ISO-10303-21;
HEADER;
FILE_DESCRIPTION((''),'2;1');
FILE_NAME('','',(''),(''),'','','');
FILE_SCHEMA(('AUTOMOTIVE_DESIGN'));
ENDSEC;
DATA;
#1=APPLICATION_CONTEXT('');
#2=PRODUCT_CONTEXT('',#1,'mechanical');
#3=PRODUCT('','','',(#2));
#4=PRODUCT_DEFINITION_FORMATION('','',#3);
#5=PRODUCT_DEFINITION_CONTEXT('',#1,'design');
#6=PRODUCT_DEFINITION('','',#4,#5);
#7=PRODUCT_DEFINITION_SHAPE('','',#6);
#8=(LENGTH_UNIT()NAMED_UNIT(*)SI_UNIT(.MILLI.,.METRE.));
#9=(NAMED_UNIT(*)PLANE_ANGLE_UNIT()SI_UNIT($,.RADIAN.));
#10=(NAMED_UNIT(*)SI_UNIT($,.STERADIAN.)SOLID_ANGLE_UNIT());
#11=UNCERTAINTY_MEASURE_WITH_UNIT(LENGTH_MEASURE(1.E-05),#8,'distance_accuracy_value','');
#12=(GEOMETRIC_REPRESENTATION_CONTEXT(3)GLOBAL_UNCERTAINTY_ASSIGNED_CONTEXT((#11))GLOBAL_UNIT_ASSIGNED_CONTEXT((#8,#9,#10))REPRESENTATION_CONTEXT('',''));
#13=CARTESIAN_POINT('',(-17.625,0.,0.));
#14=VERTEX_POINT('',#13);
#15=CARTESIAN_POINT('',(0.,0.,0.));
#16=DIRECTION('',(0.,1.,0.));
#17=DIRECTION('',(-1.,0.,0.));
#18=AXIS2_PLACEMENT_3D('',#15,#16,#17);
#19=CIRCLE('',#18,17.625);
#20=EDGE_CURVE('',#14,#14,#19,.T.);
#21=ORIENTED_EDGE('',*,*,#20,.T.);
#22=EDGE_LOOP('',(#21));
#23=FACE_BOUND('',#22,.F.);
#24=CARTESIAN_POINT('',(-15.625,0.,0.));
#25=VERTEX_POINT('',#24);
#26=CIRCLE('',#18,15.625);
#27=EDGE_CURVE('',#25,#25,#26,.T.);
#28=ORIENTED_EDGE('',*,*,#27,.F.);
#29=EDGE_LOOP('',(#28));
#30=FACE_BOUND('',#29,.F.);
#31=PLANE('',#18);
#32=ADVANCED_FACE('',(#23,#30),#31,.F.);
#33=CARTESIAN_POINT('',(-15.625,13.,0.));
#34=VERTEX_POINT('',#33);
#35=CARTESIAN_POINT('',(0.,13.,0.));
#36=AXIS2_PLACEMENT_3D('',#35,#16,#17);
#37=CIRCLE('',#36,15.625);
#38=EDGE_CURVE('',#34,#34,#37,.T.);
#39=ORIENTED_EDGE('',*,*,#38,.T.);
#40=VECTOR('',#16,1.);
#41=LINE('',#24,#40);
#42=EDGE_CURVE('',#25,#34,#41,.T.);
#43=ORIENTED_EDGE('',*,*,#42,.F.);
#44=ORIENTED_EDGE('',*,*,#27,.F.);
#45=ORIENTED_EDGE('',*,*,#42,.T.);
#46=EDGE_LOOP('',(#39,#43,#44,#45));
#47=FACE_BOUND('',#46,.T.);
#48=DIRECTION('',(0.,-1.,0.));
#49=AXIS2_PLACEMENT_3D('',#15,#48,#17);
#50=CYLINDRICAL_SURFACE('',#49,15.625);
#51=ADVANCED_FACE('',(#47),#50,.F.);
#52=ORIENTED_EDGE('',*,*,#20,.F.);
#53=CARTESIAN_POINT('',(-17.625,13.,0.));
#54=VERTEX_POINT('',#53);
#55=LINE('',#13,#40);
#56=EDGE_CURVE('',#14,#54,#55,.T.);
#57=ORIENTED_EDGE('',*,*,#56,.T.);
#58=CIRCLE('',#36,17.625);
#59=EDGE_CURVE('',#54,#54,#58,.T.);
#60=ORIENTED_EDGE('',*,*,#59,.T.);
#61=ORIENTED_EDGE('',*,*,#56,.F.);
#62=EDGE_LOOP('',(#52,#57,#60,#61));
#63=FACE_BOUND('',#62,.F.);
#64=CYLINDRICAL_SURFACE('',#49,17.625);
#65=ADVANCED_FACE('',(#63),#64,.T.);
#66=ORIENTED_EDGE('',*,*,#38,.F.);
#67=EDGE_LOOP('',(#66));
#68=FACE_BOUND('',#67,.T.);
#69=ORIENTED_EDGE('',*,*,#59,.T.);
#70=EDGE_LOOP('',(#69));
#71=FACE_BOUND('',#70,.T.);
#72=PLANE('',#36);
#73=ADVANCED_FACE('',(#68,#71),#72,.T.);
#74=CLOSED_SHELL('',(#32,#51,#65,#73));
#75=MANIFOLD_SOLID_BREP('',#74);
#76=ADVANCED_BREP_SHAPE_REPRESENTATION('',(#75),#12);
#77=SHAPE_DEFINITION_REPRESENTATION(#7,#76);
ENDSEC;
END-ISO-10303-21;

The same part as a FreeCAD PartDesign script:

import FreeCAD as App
import Part
import Sketcher

doc = App.newDocument("Part")
body = doc.addObject("PartDesign::Body", "Body")

# Sketch on XZ plane
sketch1 = doc.addObject("Sketcher::SketchObject", "Sketch")
body.addObject(sketch1)
sketch1.AttachmentSupport = (doc.XZ_Plane, [""])
sketch1.MapMode = "FlatFace"
sketch1.addGeometry([
    Part.Circle(App.Vector(0, 0, 0), App.Vector(0, 0, 1), 18),
    Part.Circle(App.Vector(0, 0, 0), App.Vector(0, 0, 1), 16),
], False)
sketch1.addConstraint([
    Sketcher.Constraint("Coincident", 0, 3, -1, 1),
    Sketcher.Constraint("Coincident", 1, 3, -1, 1),
    Sketcher.Constraint("Diameter", 0, 35.25),
    Sketcher.Constraint("Diameter", 1, 31.25),
])
pad1 = doc.addObject("PartDesign::Pad", "Pad")
body.addObject(pad1)
pad1.Profile = sketch1
pad1.Length = 13
pad1.Reversed = True

doc.recompute()
